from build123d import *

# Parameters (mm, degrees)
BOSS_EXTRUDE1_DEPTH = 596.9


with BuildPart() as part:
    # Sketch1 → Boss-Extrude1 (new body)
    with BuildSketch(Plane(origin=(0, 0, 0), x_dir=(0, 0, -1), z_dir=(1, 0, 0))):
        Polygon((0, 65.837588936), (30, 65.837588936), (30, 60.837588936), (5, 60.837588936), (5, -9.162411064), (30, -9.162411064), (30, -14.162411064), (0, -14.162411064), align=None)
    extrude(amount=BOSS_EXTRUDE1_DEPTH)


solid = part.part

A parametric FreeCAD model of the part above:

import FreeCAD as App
import Part
import Sketcher
from FreeCAD import Vector


def add_polygon(sketch, points):
    """Adds a closed chain of lines whose ends are joined by coincident constraints."""
    first, n = sketch.GeometryCount, len(points)
    for a, b in zip(points, points[1:] + points[:1]):
        sketch.addGeometry(Part.LineSegment(App.Vector(*a, 0), App.Vector(*b, 0)), False)
    for i in range(n):
        sketch.addConstraint(Sketcher.Constraint("Coincident", first + i, 2, first + (i + 1) % n, 1))

doc = App.newDocument("Part")
body = doc.addObject("PartDesign::Body", "Body")

sketch1 = body.newObject("Sketcher::SketchObject", "Sketch")
sketch1.AttachmentSupport = (doc.getObject("YZ_Plane"), [""])
sketch1.MapMode = "FlatFace"
add_polygon(sketch1, [(65.837589, -30), (65.837589, 0), (-14.162411, 0), (-14.162411, -30), (-9.162411, -30), (-9.162411, -5), (60.837589, -5), (60.837589, -30)])
sketch1.addConstraint(Sketcher.Constraint("Vertical", 0))
sketch1.addConstraint(Sketcher.Constraint("Horizontal", 1))
sketch1.addConstraint(Sketcher.Constraint("Vertical", 2))
sketch1.addConstraint(Sketcher.Constraint("Horizontal", 3))
sketch1.addConstraint(Sketcher.Constraint("Vertical", 4))
sketch1.addConstraint(Sketcher.Constraint("Horizontal", 5))
sketch1.addConstraint(Sketcher.Constraint("Vertical", 6))
sketch1.addConstraint(Sketcher.Constraint("Horizontal", 7))
sketch1.addConstraint(Sketcher.Constraint("PointOnObject", 0, 2, -1))
sketch1.addConstraint(Sketcher.Constraint("Horizontal", 3, 2, 6, 2))
sketch1.addConstraint(Sketcher.Constraint("Equal", 3, 7))
sketch1.addConstraint(Sketcher.Constraint("DistanceX", 1, 2, 1, 1, 80.0))
sketch1.addConstraint(Sketcher.Constraint("DistanceX", 3, 1, 3, 2, 5.0))
sketch1.addConstraint(Sketcher.Constraint("DistanceY", 0, 1, 0, 2, 30.0))
sketch1.addConstraint(Sketcher.Constraint("DistanceY", 4, 1, 4, 2, 25.0))
sketch1.addConstraint(Sketcher.Constraint("DistanceX", -1, 1, 0, 2, 65.837589))
pad1 = body.newObject("PartDesign::Pad", "Pad")
pad1.Profile = sketch1
pad1.Length = 596.9

doc.recompute()
